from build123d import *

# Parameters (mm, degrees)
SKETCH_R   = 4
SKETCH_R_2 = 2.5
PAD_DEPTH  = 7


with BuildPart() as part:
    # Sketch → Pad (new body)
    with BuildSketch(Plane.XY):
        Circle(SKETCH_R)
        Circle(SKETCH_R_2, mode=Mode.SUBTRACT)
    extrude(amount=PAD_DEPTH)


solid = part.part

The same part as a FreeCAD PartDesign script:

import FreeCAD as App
import Part
import Sketcher

V = App.Vector

doc = App.newDocument("Part")
params = doc.addObject("Spreadsheet::Sheet", "Params")
for row, (alias, value) in enumerate([
    ("sketch1_diameter", "8 mm"),
    ("sketch1_diameter2", "5 mm"),
    ("pad1_length", "7 mm"),
], start=1):
    params.set(f"A{row}", alias)
    params.set(f"B{row}", "=" + value)
    params.setAlias(f"B{row}", alias)

body = doc.addObject("PartDesign::Body", "Body")

# Sketch on XY plane
sketch1 = body.newObject("Sketcher::SketchObject", "Sketch")
sketch1.AttachmentSupport = (doc.getObject("XY_Plane"), [""])
sketch1.MapMode = "FlatFace"
sketch1.addGeometry([
    Part.Circle(V(0, 0, 0), V(0, 0, 1), 4),
    Part.Circle(V(0, 0, 0), V(0, 0, 1), 2.5),
], False)
sketch1.addConstraint([
    Sketcher.Constraint("Coincident", 0, 3, -1, 1),
    Sketcher.Constraint("Coincident", 1, 3, -1, 1),
    Sketcher.Constraint("Diameter", 0, 8.0),
    Sketcher.Constraint("Diameter", 1, 5.0),
])
sketch1.setExpression("Constraints[2]", "Params.sketch1_diameter")
sketch1.setExpression("Constraints[3]", "Params.sketch1_diameter2")
pad1 = body.newObject("PartDesign::Pad", "Pad")
pad1.Profile = sketch1
pad1.setExpression("Length", "Params.pad1_length")

doc.recompute()
